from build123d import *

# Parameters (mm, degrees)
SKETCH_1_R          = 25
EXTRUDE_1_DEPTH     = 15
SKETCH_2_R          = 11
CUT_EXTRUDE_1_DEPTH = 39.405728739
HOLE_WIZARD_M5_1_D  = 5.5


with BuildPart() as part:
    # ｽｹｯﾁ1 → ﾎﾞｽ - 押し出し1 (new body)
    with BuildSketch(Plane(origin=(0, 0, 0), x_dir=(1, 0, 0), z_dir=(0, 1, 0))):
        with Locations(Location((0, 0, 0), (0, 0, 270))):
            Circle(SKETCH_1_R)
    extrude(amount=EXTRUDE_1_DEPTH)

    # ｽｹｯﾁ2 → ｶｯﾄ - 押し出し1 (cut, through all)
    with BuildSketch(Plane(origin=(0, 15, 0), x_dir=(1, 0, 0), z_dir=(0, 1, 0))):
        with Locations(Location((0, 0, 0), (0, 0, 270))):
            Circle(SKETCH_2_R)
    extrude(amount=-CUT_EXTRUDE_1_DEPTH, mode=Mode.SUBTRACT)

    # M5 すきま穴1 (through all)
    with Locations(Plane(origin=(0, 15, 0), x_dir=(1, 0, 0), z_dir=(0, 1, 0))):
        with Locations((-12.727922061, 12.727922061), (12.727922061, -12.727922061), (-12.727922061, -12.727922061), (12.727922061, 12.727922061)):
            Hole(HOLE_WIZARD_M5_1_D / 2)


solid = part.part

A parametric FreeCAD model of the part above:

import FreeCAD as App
import Part
import Sketcher

V = App.Vector

doc = App.newDocument("Part")
body = doc.addObject("PartDesign::Body", "Body")

# Sketch on XZ plane
sketch1 = body.newObject("Sketcher::SketchObject", "Sketch")
sketch1.AttachmentSupport = (doc.getObject("XZ_Plane"), [""])
sketch1.MapMode = "FlatFace"
sketch1.addGeometry(Part.Circle(V(0, 0, 0), V(0, 0, 1), 25), False)
sketch1.addConstraint([
    Sketcher.Constraint("Coincident", 0, 3, -1, 1),
    Sketcher.Constraint("Diameter", 0, 50.0),
])
pad1 = body.newObject("PartDesign::Pad", "Pad")
pad1.Profile = sketch1
pad1.Length = 15
pad1.Reversed = True

# Sketch on XZ plane
sketch2 = body.newObject("Sketcher::SketchObject", "Sketch001")
sketch2.AttachmentSupport = (doc.getObject("XZ_Plane"), [""])
sketch2.MapMode = "FlatFace"
sketch2.AttachmentOffset = App.Placement(V(0, 0, -15), App.Rotation())
sketch2.addGeometry(Part.Circle(V(0, 0, 0), V(0, 0, 1), 11), False)
sketch2.addConstraint([
    Sketcher.Constraint("Coincident", 0, 3, -1, 1),
    Sketcher.Constraint("Diameter", 0, 22.0),
])
pocket1 = body.newObject("PartDesign::Pocket", "Pocket")
pocket1.Profile = sketch2
pocket1.Type = "ThroughAll"
pocket1.Reversed = True

# Sketch on XZ plane
sketch3 = body.newObject("Sketcher::SketchObject", "Sketch002")
sketch3.AttachmentSupport = (doc.getObject("XZ_Plane"), [""])
sketch3.MapMode = "FlatFace"
sketch3.AttachmentOffset = App.Placement(V(0, 0, -15), App.Rotation())
sketch3.addGeometry([
    Part.Circle(V(-12.7, -12.7, 0), V(0, 0, 1), 2.8),
    Part.Circle(V(12.7, 12.7, 0), V(0, 0, 1), 2.8),
    Part.Circle(V(-12.7, 12.7, 0), V(0, 0, 1), 2.8),
    Part.Circle(V(12.7, -12.7, 0), V(0, 0, 1), 2.8),
], False)
sketch3.addConstraint([
    Sketcher.Constraint("Equal", 0, 1),
    Sketcher.Constraint("Equal", 1, 2),
    Sketcher.Constraint("Equal", 2, 3),
    Sketcher.Constraint("Symmetric", 0, 3, 1, 3, -1, 1),
    Sketcher.Constraint("Symmetric", 2, 3, 3, 3, -1, 1),
    Sketcher.Constraint("Symmetric", 1, 3, 2, 3, -2),
    Sketcher.Constraint("Diameter", 0, 5.5),
    Sketcher.Constraint("DistanceX", 0, 3, -1, 1, 12.727922),
    Sketcher.Constraint("DistanceY", 0, 3, -1, 1, 12.727922),
])
doc.recompute()
hole = body.newObject("PartDesign::Hole", "Hole")
hole.Profile = sketch3
hole.ThreadType = "None"
hole.Diameter = 5.5
hole.DepthType = "ThroughAll"
hole.Reversed = True

doc.recompute()
